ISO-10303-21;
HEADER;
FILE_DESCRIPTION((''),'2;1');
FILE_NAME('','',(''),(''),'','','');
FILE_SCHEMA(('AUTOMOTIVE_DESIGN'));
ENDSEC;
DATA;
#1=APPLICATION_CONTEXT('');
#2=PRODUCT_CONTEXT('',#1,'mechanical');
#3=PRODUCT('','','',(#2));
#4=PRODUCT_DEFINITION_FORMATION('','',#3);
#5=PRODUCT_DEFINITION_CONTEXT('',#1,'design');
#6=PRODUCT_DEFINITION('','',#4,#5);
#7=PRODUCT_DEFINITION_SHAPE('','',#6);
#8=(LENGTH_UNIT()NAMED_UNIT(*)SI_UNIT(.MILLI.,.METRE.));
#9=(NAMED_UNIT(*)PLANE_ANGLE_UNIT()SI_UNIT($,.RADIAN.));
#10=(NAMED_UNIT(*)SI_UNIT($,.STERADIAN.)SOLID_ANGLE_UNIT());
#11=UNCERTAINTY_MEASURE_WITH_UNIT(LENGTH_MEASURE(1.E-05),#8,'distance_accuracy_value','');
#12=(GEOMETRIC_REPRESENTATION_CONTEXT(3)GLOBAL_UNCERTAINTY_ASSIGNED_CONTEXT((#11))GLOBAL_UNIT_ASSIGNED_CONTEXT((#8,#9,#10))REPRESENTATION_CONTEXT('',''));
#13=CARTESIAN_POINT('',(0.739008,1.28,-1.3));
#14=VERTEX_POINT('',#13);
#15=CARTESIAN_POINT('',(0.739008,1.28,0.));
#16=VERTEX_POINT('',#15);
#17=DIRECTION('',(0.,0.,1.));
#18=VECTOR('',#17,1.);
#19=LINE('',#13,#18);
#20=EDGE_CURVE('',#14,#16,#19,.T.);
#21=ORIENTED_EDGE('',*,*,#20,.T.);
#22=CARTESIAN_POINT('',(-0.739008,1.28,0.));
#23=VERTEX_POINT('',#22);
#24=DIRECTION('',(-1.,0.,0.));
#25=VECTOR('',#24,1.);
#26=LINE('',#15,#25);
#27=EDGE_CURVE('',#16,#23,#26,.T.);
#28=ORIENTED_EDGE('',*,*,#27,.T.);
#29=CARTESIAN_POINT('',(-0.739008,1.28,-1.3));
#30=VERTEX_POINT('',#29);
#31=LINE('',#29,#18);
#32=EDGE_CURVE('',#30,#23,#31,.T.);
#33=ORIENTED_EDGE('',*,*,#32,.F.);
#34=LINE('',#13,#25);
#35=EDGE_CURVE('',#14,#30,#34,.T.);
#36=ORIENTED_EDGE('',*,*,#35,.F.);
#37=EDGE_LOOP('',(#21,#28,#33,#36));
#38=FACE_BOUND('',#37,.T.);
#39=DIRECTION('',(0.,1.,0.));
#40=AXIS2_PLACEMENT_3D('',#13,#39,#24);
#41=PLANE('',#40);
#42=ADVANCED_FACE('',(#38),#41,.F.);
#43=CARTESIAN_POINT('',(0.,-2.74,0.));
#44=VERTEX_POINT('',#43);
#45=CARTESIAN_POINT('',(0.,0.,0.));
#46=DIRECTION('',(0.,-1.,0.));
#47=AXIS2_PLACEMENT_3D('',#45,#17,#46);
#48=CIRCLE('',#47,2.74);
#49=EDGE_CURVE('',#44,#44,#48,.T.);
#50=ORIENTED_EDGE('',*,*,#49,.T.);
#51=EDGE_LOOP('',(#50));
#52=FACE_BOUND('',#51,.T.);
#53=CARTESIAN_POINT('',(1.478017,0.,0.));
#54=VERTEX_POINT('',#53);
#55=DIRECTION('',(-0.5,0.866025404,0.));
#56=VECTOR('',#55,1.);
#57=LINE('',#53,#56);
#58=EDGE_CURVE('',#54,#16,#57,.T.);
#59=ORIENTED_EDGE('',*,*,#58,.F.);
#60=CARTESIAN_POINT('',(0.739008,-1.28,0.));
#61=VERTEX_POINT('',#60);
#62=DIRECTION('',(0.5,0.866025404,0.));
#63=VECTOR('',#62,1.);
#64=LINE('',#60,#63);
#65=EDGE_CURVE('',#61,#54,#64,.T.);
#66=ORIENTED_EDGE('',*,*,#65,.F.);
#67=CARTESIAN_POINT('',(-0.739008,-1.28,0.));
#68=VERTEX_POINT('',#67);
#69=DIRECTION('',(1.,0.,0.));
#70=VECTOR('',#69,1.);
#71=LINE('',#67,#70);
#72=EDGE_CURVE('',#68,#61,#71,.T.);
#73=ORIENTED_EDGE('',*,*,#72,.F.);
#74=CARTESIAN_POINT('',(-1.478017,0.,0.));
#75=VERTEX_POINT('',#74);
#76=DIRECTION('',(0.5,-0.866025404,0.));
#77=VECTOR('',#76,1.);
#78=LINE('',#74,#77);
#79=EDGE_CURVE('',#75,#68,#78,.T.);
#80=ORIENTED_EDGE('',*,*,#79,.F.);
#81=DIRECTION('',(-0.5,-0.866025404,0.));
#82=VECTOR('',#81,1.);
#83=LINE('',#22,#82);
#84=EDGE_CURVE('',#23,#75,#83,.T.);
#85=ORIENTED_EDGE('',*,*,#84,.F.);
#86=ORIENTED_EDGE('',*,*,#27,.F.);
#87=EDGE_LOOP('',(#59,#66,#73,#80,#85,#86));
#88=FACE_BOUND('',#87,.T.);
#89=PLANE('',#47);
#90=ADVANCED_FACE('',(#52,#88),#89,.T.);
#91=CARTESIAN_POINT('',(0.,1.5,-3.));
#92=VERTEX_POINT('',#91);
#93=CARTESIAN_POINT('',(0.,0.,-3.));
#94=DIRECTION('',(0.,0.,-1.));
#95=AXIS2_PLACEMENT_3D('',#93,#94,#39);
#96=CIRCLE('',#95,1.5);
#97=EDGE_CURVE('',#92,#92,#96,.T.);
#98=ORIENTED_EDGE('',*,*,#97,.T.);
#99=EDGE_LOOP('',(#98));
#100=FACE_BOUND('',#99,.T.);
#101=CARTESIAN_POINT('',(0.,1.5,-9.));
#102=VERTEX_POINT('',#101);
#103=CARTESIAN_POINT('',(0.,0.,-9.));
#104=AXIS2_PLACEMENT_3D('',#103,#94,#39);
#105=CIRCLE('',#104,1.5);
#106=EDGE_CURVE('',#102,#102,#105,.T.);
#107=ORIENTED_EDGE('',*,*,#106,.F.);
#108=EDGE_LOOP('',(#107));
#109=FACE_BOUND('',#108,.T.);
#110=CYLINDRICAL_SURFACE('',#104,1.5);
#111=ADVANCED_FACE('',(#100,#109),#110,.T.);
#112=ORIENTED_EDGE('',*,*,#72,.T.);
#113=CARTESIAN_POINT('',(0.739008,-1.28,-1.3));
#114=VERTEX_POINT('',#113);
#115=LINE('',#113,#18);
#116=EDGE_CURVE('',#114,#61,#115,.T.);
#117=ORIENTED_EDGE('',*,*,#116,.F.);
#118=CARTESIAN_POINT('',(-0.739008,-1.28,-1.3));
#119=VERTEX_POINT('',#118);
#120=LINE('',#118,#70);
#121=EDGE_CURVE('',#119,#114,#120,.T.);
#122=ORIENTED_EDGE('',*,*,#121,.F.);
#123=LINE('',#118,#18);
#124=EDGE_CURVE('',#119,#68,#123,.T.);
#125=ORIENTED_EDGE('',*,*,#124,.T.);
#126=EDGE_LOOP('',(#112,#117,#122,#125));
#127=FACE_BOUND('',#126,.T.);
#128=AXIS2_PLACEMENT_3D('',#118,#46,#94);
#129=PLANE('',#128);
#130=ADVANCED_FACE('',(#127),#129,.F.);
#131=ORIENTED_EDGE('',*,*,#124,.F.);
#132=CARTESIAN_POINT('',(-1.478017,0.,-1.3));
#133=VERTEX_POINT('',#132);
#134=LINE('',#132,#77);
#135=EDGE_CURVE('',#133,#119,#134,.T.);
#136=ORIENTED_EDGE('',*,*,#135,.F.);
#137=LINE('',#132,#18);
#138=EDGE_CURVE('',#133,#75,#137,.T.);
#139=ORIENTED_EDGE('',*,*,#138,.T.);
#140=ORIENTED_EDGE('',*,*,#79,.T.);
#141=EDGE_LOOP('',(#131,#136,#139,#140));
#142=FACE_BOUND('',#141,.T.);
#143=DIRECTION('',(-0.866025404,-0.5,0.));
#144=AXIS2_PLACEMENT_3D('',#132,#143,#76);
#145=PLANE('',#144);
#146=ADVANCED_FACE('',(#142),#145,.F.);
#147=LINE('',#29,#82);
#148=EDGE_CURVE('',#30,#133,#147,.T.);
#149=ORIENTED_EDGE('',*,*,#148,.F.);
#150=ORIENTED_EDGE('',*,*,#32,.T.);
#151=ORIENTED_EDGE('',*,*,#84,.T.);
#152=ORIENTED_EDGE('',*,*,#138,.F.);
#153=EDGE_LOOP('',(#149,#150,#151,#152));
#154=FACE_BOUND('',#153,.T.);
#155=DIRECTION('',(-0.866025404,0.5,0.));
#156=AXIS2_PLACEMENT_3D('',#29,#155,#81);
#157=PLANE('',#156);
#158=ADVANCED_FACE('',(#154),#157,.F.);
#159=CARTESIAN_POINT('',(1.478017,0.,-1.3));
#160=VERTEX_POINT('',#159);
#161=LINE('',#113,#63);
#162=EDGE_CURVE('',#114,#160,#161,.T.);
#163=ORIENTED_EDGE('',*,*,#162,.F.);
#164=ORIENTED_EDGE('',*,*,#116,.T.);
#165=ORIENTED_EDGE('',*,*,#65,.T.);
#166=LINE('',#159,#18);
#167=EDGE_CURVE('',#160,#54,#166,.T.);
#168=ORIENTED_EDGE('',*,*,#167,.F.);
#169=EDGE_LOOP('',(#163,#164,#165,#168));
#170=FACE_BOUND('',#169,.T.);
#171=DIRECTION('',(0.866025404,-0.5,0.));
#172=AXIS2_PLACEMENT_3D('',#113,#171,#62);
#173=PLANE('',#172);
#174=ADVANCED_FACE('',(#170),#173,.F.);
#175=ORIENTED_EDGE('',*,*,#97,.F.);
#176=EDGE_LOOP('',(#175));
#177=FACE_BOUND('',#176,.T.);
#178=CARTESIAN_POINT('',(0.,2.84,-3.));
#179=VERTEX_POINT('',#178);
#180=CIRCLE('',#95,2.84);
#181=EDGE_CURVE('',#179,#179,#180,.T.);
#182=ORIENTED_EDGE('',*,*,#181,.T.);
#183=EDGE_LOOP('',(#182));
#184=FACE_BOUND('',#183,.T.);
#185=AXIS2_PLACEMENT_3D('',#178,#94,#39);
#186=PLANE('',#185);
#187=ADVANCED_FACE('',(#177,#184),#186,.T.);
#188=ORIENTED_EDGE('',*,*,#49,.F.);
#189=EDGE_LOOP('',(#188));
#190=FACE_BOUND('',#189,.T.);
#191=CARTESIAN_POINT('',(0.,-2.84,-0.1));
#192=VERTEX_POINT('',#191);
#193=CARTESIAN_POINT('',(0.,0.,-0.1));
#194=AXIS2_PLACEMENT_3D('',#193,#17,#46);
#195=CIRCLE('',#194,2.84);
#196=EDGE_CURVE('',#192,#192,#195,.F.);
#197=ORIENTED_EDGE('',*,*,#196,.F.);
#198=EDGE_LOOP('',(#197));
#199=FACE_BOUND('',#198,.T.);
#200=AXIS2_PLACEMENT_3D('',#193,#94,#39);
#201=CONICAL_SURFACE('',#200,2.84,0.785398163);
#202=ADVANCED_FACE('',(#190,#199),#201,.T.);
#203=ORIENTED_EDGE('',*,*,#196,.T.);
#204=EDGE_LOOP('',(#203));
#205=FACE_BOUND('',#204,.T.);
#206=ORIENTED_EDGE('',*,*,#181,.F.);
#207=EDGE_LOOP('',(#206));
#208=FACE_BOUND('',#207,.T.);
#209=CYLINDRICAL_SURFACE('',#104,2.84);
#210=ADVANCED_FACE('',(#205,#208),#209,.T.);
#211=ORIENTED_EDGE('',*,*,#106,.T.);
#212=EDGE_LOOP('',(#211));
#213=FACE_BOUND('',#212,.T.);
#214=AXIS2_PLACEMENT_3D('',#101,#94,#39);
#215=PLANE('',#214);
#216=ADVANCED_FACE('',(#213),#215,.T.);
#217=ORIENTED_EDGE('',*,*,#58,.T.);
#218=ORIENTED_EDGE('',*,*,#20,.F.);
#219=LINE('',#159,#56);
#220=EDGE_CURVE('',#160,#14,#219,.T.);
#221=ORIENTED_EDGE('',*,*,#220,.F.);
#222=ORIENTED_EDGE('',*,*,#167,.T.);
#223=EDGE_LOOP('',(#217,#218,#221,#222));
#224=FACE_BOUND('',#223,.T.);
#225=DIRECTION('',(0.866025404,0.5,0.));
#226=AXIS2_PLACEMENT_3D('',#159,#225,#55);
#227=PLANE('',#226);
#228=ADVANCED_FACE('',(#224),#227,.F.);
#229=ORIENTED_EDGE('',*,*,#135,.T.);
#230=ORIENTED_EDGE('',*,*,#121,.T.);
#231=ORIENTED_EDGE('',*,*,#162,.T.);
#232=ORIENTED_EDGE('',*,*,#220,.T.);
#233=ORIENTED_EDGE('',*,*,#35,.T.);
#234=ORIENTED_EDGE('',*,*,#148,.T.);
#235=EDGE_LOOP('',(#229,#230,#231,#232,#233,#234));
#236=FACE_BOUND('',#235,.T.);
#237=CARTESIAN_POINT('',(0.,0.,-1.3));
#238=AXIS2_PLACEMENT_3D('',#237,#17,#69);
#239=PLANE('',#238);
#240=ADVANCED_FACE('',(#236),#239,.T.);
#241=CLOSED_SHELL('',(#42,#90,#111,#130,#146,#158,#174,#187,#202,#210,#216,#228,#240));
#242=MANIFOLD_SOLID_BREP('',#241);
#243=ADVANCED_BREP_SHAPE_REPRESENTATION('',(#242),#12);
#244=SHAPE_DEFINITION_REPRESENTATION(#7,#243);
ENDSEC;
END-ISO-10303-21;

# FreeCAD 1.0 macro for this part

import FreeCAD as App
import Part
import Sketcher
from FreeCAD import Vector
Q = App.Units.Quantity


def edges_at(feature, points):
    """Names of the edges that pass closest to the given points."""
    edges = feature.Shape.Edges
    near = lambda p: min(range(len(edges)), key=lambda i: edges[i].distToShape(Part.Vertex(*p))[0])
    return sorted({f"Edge{near(p) + 1}" for p in points})


def add_polygon(sketch, points):
    """Adds a closed chain of lines whose ends are joined by coincident constraints."""
    first, n = sketch.GeometryCount, len(points)
    for a, b in zip(points, points[1:] + points[:1]):
        sketch.addGeometry(Part.LineSegment(App.Vector(*a, 0), App.Vector(*b, 0)), False)
    for i in range(n):
        sketch.addConstraint(Sketcher.Constraint("Coincident", first + i, 2, first + (i + 1) % n, 1))

doc = App.newDocument("Part")
body = doc.addObject("PartDesign::Body", "Body")

# Sketch on YZ plane
sketch1 = body.newObject("Sketcher::SketchObject", "Sketch")
sketch1.AttachmentSupport = (doc.getObject("YZ_Plane"), [""])
sketch1.MapMode = "FlatFace"
add_polygon(sketch1, [(2.84, 0), (0, 0), (0, -9), (1.5, -9), (1.5, -3), (2.84, -3)])  # lines 0-5
sketch1.addConstraint([
    Sketcher.Constraint("Horizontal", 0),
    Sketcher.Constraint("Vertical", 1),
    Sketcher.Constraint("Horizontal", 2),
    Sketcher.Constraint("Vertical", 3),
    Sketcher.Constraint("Horizontal", 4),
    Sketcher.Constraint("Vertical", 5),
    Sketcher.Constraint("Coincident", 0, 2, -1, 1),
    Sketcher.Constraint("DistanceY", 1, 2, 1, 1, Q("9 mm")),
    Sketcher.Constraint("DistanceY", 3, 1, 3, 2, Q("6 mm")),
    Sketcher.Constraint("DistanceX", 2, 1, 2, 2, Q("1.5 mm")),
    Sketcher.Constraint("DistanceX", 0, 2, 0, 1, Q("2.84 mm")),
])
revolution = body.newObject("PartDesign::Revolution", "Revolution")
revolution.Profile = sketch1
revolution.ReferenceAxis = (sketch1, ["V_Axis"])
revolution.Angle = 360

# Sketch on XY plane
sketch2 = body.newObject("Sketcher::SketchObject", "Sketch001")
sketch2.AttachmentSupport = (doc.getObject("XY_Plane"), [""])
sketch2.MapMode = "FlatFace"
add_polygon(sketch2, [(0.739008, 1.28), (-0.739008, 1.28), (-1.478017, 0), (-0.739008, -1.28), (0.739008, -1.28), (1.478017, 0)])  # lines 0-5
sketch2.addConstraint([
    Sketcher.Constraint("Horizontal", 0),
    Sketcher.Constraint("Horizontal", 3),
    Sketcher.Constraint("Symmetric", 0, 2, 3, 2, -1, 1),
    Sketcher.Constraint("Symmetric", 1, 2, 4, 2, -1, 1),
    Sketcher.Constraint("PointOnObject", 1, 2, -1),
    Sketcher.Constraint("Parallel", 2, 5),
    Sketcher.Constraint("Vertical", 0, 2, 2, 2),
    Sketcher.Constraint("Angle", 1, Q("-120 deg")),
    Sketcher.Constraint("DistanceY", -1, 1, 0, 2, Q("1.28 mm")),
    Sketcher.Constraint("DistanceX", 0, 2, 0, 1, Q("1.478017 mm")),
])
pocket1 = body.newObject("PartDesign::Pocket", "Pocket")
pocket1.Profile = sketch2
pocket1.Length = 1.3
doc.recompute()

chamfer = body.newObject("PartDesign::Chamfer", "Chamfer")
chamfer.Base = (pocket1, edges_at(pocket1, [(0, -2.84, 0)]))
chamfer.Size = 0.1

doc.recompute()
